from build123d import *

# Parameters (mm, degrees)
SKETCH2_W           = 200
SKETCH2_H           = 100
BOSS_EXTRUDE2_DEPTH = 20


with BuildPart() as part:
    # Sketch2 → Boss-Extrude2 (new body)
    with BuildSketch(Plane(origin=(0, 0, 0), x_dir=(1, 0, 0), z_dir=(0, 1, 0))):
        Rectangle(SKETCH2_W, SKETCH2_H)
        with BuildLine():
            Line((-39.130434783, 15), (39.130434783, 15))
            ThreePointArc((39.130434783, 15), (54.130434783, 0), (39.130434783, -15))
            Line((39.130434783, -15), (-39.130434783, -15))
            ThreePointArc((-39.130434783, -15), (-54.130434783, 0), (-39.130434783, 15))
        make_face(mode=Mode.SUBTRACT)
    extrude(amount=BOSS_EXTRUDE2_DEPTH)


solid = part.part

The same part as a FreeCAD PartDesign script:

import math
import FreeCAD as App
import Part
import Sketcher
from FreeCAD import Vector


def add_polygon(sketch, points):
    """Adds a closed chain of lines whose ends are joined by coincident constraints."""
    first, n = sketch.GeometryCount, len(points)
    for a, b in zip(points, points[1:] + points[:1]):
        sketch.addGeometry(Part.LineSegment(App.Vector(*a, 0), App.Vector(*b, 0)), False)
    for i in range(n):
        sketch.addConstraint(Sketcher.Constraint("Coincident", first + i, 2, first + (i + 1) % n, 1))

doc = App.newDocument("Part")
params = doc.addObject("Spreadsheet::Sheet", "Params")
for row, (alias, value) in enumerate([
    ("sketch1_radius", "15 mm"),
    ("sketch1_width", "200 mm"),
    ("sketch1_height", "100 mm"),
    ("pad1_length", "20 mm"),
], start=1):
    params.set(f"A{row}", alias)
    params.set(f"B{row}", "=" + value)
    params.setAlias(f"B{row}", alias)

body = doc.addObject("PartDesign::Body", "Body")

sketch1 = body.newObject("Sketcher::SketchObject", "Sketch")
sketch1.AttachmentSupport = (doc.getObject("XZ_Plane"), [""])
sketch1.MapMode = "FlatFace"
add_polygon(sketch1, [(-100, -50), (-100, 50), (100, 50), (100, -50)])
sketch1.addGeometry(Part.ArcOfCircle(Part.Circle(Vector(-39.130435, 0, 0), Vector(0, 0, 1), 15), math.radians(90), math.radians(270)), False)
sketch1.addGeometry(Part.LineSegment(Vector(-39.130435, -15, 0), Vector(39.130435, -15, 0)), False)
sketch1.addGeometry(Part.ArcOfCircle(Part.Circle(Vector(39.130435, 0, 0), Vector(0, 0, 1), 15), math.radians(-90), math.radians(90)), False)
sketch1.addGeometry(Part.LineSegment(Vector(39.130435, 15, 0), Vector(-39.130435, 15, 0)), False)
sketch1.addConstraint(Sketcher.Constraint("Tangent", 4, 2, 5, 1))
sketch1.addConstraint(Sketcher.Constraint("Tangent", 5, 2, 6, 1))
sketch1.addConstraint(Sketcher.Constraint("Tangent", 6, 2, 7, 1))
sketch1.addConstraint(Sketcher.Constraint("Tangent", 7, 2, 4, 1))
sketch1.addConstraint(Sketcher.Constraint("Vertical", 0))
sketch1.addConstraint(Sketcher.Constraint("Horizontal", 1))
sketch1.addConstraint(Sketcher.Constraint("Vertical", 2))
sketch1.addConstraint(Sketcher.Constraint("Horizontal", 3))
sketch1.addConstraint(Sketcher.Constraint("Horizontal", 5))
sketch1.addConstraint(Sketcher.Constraint("Horizontal", 7))
sketch1.addConstraint(Sketcher.Constraint("Symmetric", 4, 3, 6, 3, -1, 1))
sketch1.addConstraint(Sketcher.Constraint("Symmetric", 0, 2, 2, 2, -1, 1))
sketch1.addConstraint(Sketcher.Constraint("Radius", 4, 15.0))
sketch1.addConstraint(Sketcher.Constraint("DistanceX", 1, 1, 1, 2, 200.0))
sketch1.addConstraint(Sketcher.Constraint("DistanceY", 0, 1, 0, 2, 100.0))
sketch1.addConstraint(Sketcher.Constraint("DistanceX", 5, 1, 5, 2, 78.26087))
sketch1.setExpression("Constraints[16]", "Params.sketch1_radius")
sketch1.setExpression("Constraints[17]", "Params.sketch1_width")
sketch1.setExpression("Constraints[18]", "Params.sketch1_height")
pad1 = body.newObject("PartDesign::Pad", "Pad")
pad1.Profile = sketch1
pad1.setExpression("Length", "Params.pad1_length")
pad1.Reversed = True

doc.recompute()
